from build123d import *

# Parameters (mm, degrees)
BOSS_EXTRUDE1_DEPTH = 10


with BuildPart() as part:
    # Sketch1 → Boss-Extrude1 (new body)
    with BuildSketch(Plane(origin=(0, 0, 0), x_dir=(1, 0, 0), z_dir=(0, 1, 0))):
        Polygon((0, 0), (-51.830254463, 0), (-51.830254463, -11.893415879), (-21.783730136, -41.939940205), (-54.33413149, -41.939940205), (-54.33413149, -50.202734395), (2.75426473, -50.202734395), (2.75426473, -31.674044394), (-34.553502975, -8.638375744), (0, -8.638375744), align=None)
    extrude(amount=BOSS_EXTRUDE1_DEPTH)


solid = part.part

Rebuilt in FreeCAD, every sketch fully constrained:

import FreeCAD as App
import Part
import Sketcher
from FreeCAD import Vector
Q = App.Units.Quantity

doc = App.newDocument("Part")
body = doc.addObject("PartDesign::Body", "Body")

# Sketch on XZ plane
sketch1 = body.newObject("Sketcher::SketchObject", "Sketch")
sketch1.AttachmentSupport = (doc.getObject("XZ_Plane"), [""])
sketch1.MapMode = "FlatFace"
sketch1.addGeometry(Part.LineSegment(Vector(0, 0, 0), Vector(-52, 0, 0)), False)
sketch1.addGeometry(Part.LineSegment(Vector(-52, 0, 0), Vector(-52, 12, 0)), False)
sketch1.addGeometry(Part.LineSegment(Vector(-52, 12, 0), Vector(-22, 42, 0)), False)
sketch1.addGeometry(Part.LineSegment(Vector(-22, 42, 0), Vector(-54, 42, 0)), False)
sketch1.addGeometry(Part.LineSegment(Vector(-54, 42, 0), Vector(-54, 50, 0)), False)
sketch1.addGeometry(Part.LineSegment(Vector(-54, 50, 0), Vector(3, 50, 0)), False)
sketch1.addGeometry(Part.LineSegment(Vector(3, 50, 0), Vector(3, 32, 0)), False)
sketch1.addGeometry(Part.LineSegment(Vector(3, 32, 0), Vector(-35, 9, 0)), False)
sketch1.addGeometry(Part.LineSegment(Vector(-35, 9, 0), Vector(0, 9, 0)), False)
sketch1.addGeometry(Part.LineSegment(Vector(0, 9, 0), Vector(0, 0, 0)), False)
sketch1.addConstraint(Sketcher.Constraint("Coincident", 0, 2, 1, 1))
sketch1.addConstraint(Sketcher.Constraint("Coincident", 1, 2, 2, 1))
sketch1.addConstraint(Sketcher.Constraint("Coincident", 2, 2, 3, 1))
sketch1.addConstraint(Sketcher.Constraint("Coincident", 3, 2, 4, 1))
sketch1.addConstraint(Sketcher.Constraint("Coincident", 4, 2, 5, 1))
sketch1.addConstraint(Sketcher.Constraint("Coincident", 5, 2, 6, 1))
sketch1.addConstraint(Sketcher.Constraint("Coincident", 6, 2, 7, 1))
sketch1.addConstraint(Sketcher.Constraint("Coincident", 7, 2, 8, 1))
sketch1.addConstraint(Sketcher.Constraint("Coincident", 8, 2, 9, 1))
sketch1.addConstraint(Sketcher.Constraint("Coincident", 9, 2, 0, 1))
sketch1.addConstraint(Sketcher.Constraint("Horizontal", 0))
sketch1.addConstraint(Sketcher.Constraint("Vertical", 1))
sketch1.addConstraint(Sketcher.Constraint("Horizontal", 3))
sketch1.addConstraint(Sketcher.Constraint("Vertical", 4))
sketch1.addConstraint(Sketcher.Constraint("Horizontal", 5))
sketch1.addConstraint(Sketcher.Constraint("Vertical", 6))
sketch1.addConstraint(Sketcher.Constraint("Horizontal", 8))
sketch1.addConstraint(Sketcher.Constraint("Vertical", 9))
sketch1.addConstraint(Sketcher.Constraint("Coincident", 9, 2, -1, 1))
sketch1.addConstraint(Sketcher.Constraint("Angle", 2, Q("45 deg")))
sketch1.addConstraint(Sketcher.Constraint("DistanceX", 3, 2, 3, 1, Q("32.550401 mm")))
sketch1.addConstraint(Sketcher.Constraint("DistanceY", 6, 2, 6, 1, Q("18.52869 mm")))
sketch1.addConstraint(Sketcher.Constraint("DistanceX", 0, 2, 0, 1, Q("51.830254 mm")))
sketch1.addConstraint(Sketcher.Constraint("DistanceX", 5, 1, 5, 2, Q("57.088396 mm")))
sketch1.addConstraint(Sketcher.Constraint("DistanceX", 8, 1, 8, 2, Q("34.553503 mm")))
sketch1.addConstraint(Sketcher.Constraint("DistanceY", 1, 1, 1, 2, Q("11.893416 mm")))
sketch1.addConstraint(Sketcher.Constraint("DistanceY", 4, 1, 4, 2, Q("8.262794 mm")))
sketch1.addConstraint(Sketcher.Constraint("DistanceY", 9, 2, 9, 1, Q("8.638376 mm")))
sketch1.addConstraint(Sketcher.Constraint("DistanceX", 2, 2, -1, 1, Q("21.78373 mm")))
pad1 = body.newObject("PartDesign::Pad", "Pad")
pad1.Profile = sketch1
pad1.Length = 10
pad1.Reversed = True

doc.recompute()
